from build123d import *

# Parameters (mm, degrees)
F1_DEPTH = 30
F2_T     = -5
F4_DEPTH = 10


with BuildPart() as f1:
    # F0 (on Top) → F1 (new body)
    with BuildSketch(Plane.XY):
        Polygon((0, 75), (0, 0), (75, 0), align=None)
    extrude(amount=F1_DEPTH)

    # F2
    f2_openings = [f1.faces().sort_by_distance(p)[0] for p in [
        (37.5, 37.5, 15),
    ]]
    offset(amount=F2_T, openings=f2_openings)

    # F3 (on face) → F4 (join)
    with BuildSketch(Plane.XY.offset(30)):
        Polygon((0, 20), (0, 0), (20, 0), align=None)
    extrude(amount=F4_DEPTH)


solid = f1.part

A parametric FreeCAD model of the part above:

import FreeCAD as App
import Part
import Sketcher


def faces_at(feature, points):
    """Names of the faces that lie closest to the given points."""
    faces = feature.Shape.Faces
    near = lambda p: min(range(len(faces)), key=lambda i: faces[i].distToShape(Part.Vertex(*p))[0])
    return sorted({f"Face{near(p) + 1}" for p in points})


def add_polygon(sketch, points):
    """Adds a closed chain of lines whose ends are joined by coincident constraints."""
    first, n = sketch.GeometryCount, len(points)
    for a, b in zip(points, points[1:] + points[:1]):
        sketch.addGeometry(Part.LineSegment(App.Vector(*a, 0), App.Vector(*b, 0)), False)
    for i in range(n):
        sketch.addConstraint(Sketcher.Constraint("Coincident", first + i, 2, first + (i + 1) % n, 1))

doc = App.newDocument("Part")
body = doc.addObject("PartDesign::Body", "Body")

sketch1 = doc.addObject("Sketcher::SketchObject", "Sketch")
body.addObject(sketch1)
sketch1.AttachmentSupport = (doc.XY_Plane, [""])
sketch1.MapMode = "FlatFace"
add_polygon(sketch1, [(0, 75), (0, 0), (75, 0)])
sketch1.addConstraint([
    Sketcher.Constraint("Vertical", 0),
    Sketcher.Constraint("Horizontal", 1),
    Sketcher.Constraint("Coincident", 0, 2, -1, 1),
    Sketcher.Constraint("Equal", 1, 0),
    Sketcher.Constraint("DistanceX", 1, 1, 1, 2, 75.0),
])
pad1 = doc.addObject("PartDesign::Pad", "Pad")
body.addObject(pad1)
pad1.Profile = sketch1
pad1.Length = 30
doc.recompute()

thickness = doc.addObject("PartDesign::Thickness", "Thickness")
body.addObject(thickness)
thickness.Base = (pad1, faces_at(pad1, [(37.5, 37.5, 15)]))
thickness.Value = 5
thickness.Reversed = True
thickness.Join = "Arc"

sketch2 = doc.addObject("Sketcher::SketchObject", "Sketch001")
body.addObject(sketch2)
sketch2.AttachmentSupport = (doc.XY_Plane, [""])
sketch2.MapMode = "FlatFace"
sketch2.AttachmentOffset = App.Placement(App.Vector(0, 0, 30), App.Rotation())
add_polygon(sketch2, [(0, 20), (0, 0), (20, 0)])
sketch2.addConstraint([
    Sketcher.Constraint("Vertical", 0),
    Sketcher.Constraint("Horizontal", 1),
    Sketcher.Constraint("Coincident", 0, 2, -1, 1),
    Sketcher.Constraint("Equal", 1, 0),
    Sketcher.Constraint("DistanceX", 1, 1, 1, 2, 20.0),
])
pad2 = doc.addObject("PartDesign::Pad", "Pad001")
body.addObject(pad2)
pad2.Profile = sketch2
pad2.Length = 10

doc.recompute()
